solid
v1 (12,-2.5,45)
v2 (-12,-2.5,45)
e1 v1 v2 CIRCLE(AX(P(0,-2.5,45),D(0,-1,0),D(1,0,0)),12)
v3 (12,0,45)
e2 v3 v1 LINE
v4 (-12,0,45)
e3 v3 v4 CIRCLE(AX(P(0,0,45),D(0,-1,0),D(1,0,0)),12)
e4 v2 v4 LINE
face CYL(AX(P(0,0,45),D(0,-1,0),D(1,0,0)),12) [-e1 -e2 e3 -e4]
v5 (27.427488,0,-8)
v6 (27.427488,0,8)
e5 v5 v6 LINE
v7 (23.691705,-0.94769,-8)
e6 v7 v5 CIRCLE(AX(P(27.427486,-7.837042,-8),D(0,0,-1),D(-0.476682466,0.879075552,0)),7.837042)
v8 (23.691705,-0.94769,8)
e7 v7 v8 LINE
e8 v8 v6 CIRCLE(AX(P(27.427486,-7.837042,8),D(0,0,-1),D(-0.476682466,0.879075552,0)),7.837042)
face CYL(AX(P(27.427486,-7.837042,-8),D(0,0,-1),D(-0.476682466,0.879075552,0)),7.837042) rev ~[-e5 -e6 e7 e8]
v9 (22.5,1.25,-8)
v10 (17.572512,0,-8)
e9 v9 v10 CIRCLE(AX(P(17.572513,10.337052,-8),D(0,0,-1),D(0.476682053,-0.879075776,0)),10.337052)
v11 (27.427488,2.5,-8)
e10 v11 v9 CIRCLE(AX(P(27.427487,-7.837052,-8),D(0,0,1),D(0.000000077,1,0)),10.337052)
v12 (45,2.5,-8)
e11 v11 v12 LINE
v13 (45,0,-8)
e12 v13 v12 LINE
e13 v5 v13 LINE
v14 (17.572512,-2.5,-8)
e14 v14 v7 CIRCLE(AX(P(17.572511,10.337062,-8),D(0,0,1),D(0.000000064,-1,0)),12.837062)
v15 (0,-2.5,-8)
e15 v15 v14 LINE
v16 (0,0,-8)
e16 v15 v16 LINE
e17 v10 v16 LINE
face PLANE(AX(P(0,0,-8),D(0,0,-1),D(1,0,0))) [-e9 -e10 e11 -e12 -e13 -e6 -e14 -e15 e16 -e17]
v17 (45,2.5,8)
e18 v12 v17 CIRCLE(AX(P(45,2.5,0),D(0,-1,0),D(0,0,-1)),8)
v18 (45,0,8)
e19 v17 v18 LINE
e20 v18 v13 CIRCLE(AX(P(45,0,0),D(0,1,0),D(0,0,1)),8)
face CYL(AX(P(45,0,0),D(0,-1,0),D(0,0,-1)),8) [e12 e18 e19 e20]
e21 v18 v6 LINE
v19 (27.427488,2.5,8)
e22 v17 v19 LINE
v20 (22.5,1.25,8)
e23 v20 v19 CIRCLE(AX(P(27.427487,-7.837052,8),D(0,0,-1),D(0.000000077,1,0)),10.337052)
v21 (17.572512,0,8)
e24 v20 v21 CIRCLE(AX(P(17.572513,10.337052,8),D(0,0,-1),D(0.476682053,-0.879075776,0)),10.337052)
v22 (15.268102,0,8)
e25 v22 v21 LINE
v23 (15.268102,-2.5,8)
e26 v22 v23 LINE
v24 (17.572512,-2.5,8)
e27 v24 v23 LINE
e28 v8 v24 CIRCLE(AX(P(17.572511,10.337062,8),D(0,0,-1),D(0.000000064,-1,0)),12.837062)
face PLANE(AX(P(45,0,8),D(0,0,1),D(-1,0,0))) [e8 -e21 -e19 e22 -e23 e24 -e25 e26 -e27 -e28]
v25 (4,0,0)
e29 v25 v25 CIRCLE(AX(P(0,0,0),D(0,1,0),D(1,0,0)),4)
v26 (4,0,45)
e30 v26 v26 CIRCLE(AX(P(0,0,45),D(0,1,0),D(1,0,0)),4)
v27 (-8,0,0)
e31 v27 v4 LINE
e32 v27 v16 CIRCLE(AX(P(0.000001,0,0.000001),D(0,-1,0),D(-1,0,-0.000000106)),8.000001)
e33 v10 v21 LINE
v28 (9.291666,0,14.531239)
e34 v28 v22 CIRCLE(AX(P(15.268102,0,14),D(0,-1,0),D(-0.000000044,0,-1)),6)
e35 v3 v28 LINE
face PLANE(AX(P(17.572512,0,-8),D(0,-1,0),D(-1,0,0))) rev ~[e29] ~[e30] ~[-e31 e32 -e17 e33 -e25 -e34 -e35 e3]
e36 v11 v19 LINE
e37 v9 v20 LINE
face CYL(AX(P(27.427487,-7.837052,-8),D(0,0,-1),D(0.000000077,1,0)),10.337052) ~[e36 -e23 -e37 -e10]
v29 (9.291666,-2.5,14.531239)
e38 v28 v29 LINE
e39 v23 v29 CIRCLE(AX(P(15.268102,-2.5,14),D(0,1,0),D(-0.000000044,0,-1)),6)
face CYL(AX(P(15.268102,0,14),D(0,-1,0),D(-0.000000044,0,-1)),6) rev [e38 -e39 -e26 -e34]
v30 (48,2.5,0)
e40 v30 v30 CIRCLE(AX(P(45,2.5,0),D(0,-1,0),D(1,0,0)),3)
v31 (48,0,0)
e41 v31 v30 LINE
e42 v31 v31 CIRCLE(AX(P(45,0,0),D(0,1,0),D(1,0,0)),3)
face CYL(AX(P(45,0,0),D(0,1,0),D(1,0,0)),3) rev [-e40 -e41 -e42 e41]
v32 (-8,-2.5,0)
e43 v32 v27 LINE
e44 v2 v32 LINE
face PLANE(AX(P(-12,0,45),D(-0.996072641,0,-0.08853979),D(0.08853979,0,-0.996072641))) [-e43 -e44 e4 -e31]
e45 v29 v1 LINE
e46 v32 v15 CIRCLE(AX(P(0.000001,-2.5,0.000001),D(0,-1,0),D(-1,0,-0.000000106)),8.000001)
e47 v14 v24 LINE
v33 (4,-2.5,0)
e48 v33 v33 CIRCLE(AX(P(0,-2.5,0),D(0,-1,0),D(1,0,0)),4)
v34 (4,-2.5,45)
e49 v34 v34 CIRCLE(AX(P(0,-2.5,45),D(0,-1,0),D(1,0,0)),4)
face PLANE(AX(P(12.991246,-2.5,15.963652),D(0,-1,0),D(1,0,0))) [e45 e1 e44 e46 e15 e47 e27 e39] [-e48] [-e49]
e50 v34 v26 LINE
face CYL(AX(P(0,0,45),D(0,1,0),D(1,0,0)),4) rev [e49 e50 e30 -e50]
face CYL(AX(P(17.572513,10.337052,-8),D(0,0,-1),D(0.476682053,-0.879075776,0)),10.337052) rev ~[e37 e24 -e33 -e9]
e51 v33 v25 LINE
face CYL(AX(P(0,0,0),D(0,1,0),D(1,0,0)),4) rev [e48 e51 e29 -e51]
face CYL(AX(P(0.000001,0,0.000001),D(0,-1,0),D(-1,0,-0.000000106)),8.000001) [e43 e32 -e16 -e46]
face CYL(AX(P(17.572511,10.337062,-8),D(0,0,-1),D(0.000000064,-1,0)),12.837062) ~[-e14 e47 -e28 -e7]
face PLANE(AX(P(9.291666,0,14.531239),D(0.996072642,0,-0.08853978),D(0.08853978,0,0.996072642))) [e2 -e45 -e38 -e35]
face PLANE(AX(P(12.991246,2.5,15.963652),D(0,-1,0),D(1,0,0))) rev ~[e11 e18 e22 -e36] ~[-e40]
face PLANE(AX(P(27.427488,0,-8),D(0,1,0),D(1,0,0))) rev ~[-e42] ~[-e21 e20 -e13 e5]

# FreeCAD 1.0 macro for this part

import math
import FreeCAD as App
import Part
import Sketcher

V = App.Vector

doc = App.newDocument("Part")
params = doc.addObject("Spreadsheet::Sheet", "Params")
for row, (alias, value) in enumerate([
    ("sketch1_diameter", "8 mm"),
    ("sketch1_diameter2", "6 mm"),
    ("sketch1_radius", "8 mm"),
    ("sketch1_radius2", "6 mm"),
    ("sketch1_radius3", "12 mm"),
    ("pad1_length", "5 mm"),
    ("sketch2_height", "2.5 mm"),
], start=1):
    params.set(f"A{row}", alias)
    params.set(f"B{row}", "=" + value)
    params.setAlias(f"B{row}", alias)

body = doc.addObject("PartDesign::Body", "Body")

# Sketch on XZ plane
sketch1 = doc.addObject("Sketcher::SketchObject", "Sketch")
body.addObject(sketch1)
sketch1.AttachmentSupport = (doc.XZ_Plane, [""])
sketch1.MapMode = "FlatFace"
sketch1.addGeometry(Part.ArcOfCircle(Part.Circle(V(45, 0, 0), V(0, 0, 1), 8), math.radians(-90), math.radians(90)), False)
sketch1.addGeometry(Part.LineSegment(V(45, 8, 0), V(15.268102, 8, 0)), False)
sketch1.addGeometry(Part.ArcOfCircle(Part.Circle(V(15.268102, 14, 0), V(0, 0, 1), 6), math.radians(174.920394), math.radians(269.999997)), False)
sketch1.addGeometry(Part.LineSegment(V(9.291666, 14.531239, 0), V(12, 45, 0)), False)
sketch1.addGeometry(Part.ArcOfCircle(Part.Circle(V(0, 45, 0), V(0, 0, 1), 12), math.radians(0), math.radians(180)), False)
sketch1.addGeometry(Part.LineSegment(V(-12, 45, 0), V(-8, 0, 0)), False)
sketch1.addGeometry(Part.ArcOfCircle(Part.Circle(V(0.000001, 0.000001, 0), V(0, 0, 1), 8.000001), math.radians(-179.999994), math.radians(-90.000006)), False)
sketch1.addGeometry(Part.LineSegment(V(0, -8, 0), V(45, -8, 0)), False)
sketch1.addGeometry(Part.Circle(V(0, 0, 0), V(0, 0, 1), 4), False)
sketch1.addGeometry(Part.Circle(V(45, 0, 0), V(0, 0, 1), 3), False)
sketch1.addGeometry(Part.Circle(V(0, 45, 0), V(0, 0, 1), 4), False)
sketch1.addConstraint(Sketcher.Constraint("Tangent", 0, 2, 1, 1))
sketch1.addConstraint(Sketcher.Constraint("Tangent", 1, 2, 2, 2))
sketch1.addConstraint(Sketcher.Constraint("Tangent", 2, 1, 3, 1))
sketch1.addConstraint(Sketcher.Constraint("Coincident", 3, 2, 4, 1))
sketch1.addConstraint(Sketcher.Constraint("Coincident", 4, 2, 5, 1))
sketch1.addConstraint(Sketcher.Constraint("Coincident", 5, 2, 6, 1))
sketch1.addConstraint(Sketcher.Constraint("Tangent", 6, 2, 7, 1))
sketch1.addConstraint(Sketcher.Constraint("Tangent", 7, 2, 0, 1))
sketch1.addConstraint(Sketcher.Constraint("Horizontal", 1))
sketch1.addConstraint(Sketcher.Constraint("Horizontal", 7))
sketch1.addConstraint(Sketcher.Constraint("Coincident", 6, 3, -1, 1))
sketch1.addConstraint(Sketcher.Constraint("Coincident", 8, 3, -1, 1))
sketch1.addConstraint(Sketcher.Constraint("Coincident", 9, 3, 0, 3))
sketch1.addConstraint(Sketcher.Constraint("Coincident", 10, 3, 4, 3))
sketch1.addConstraint(Sketcher.Constraint("Equal", 0, 6))
sketch1.addConstraint(Sketcher.Constraint("Equal", 8, 10))
sketch1.addConstraint(Sketcher.Constraint("Symmetric", 3, 2, 4, 2, -2))
sketch1.addConstraint(Sketcher.Constraint("PointOnObject", 5, 2, -1))
sketch1.addConstraint(Sketcher.Constraint("Horizontal", 10, 3, 3, 2))
sketch1.addConstraint(Sketcher.Constraint("Diameter", 8, 8.0))
sketch1.addConstraint(Sketcher.Constraint("Diameter", 9, 6.0))
sketch1.addConstraint(Sketcher.Constraint("Radius", 0, 8.0))
sketch1.addConstraint(Sketcher.Constraint("Radius", 2, 6.0))
sketch1.addConstraint(Sketcher.Constraint("Radius", 4, 12.0))
sketch1.addConstraint(Sketcher.Constraint("DistanceX", 7, 1, 7, 2, 45.0))
sketch1.addConstraint(Sketcher.Constraint("DistanceY", -1, 1, 4, 3, 45.0))
sketch1.addConstraint(Sketcher.Constraint("DistanceX", 1, 2, 1, 1, 29.731898))
sketch1.setExpression("Constraints[19]", "Params.sketch1_diameter")
sketch1.setExpression("Constraints[20]", "Params.sketch1_diameter2")
sketch1.setExpression("Constraints[21]", "Params.sketch1_radius")
sketch1.setExpression("Constraints[22]", "Params.sketch1_radius2")
sketch1.setExpression("Constraints[23]", "Params.sketch1_radius3")
pad1 = doc.addObject("PartDesign::Pad", "Pad")
body.addObject(pad1)
pad1.Profile = sketch1
pad1.setExpression("Length", "Params.pad1_length")
pad1.Midplane = True

# Sketch on XY plane
sketch2 = doc.addObject("Sketcher::SketchObject", "Sketch001")
body.addObject(sketch2)
sketch2.AttachmentSupport = (doc.XY_Plane, [""])
sketch2.MapMode = "FlatFace"
sketch2.AttachmentOffset = App.Placement(V(0, 0, -8), App.Rotation())
sketch2.addGeometry(Part.LineSegment(V(-12, 0, 0), V(-12, 2.5, 0)), False)
sketch2.addGeometry(Part.LineSegment(V(-12, 2.5, 0), V(27.427488, 2.5, 0)), False)
sketch2.addGeometry(Part.ArcOfCircle(Part.Circle(V(27.427487, -7.837052, 0), V(0, 0, 1), 10.337052), math.radians(89.999996), math.radians(118.468925)), False)
sketch2.addGeometry(Part.ArcOfCircle(Part.Circle(V(17.572513, 10.337052, 0), V(0, 0, 1), 10.337052), math.radians(-90.000004), math.radians(-61.531075)), False)
sketch2.addGeometry(Part.LineSegment(V(17.572512, 0, 0), V(-12, 0, 0)), False)
sketch2.addGeometry(Part.LineSegment(V(53, 0, 0), V(53, -2.5, 0)), False)
sketch2.addGeometry(Part.LineSegment(V(53, -2.5, 0), V(17.572512, -2.5, 0)), False)
sketch2.addGeometry(Part.ArcOfCircle(Part.Circle(V(17.572511, 10.337062, 0), V(0, 0, 1), 12.837062), math.radians(-89.999996), math.radians(-61.531091)), False)
sketch2.addGeometry(Part.ArcOfCircle(Part.Circle(V(27.427486, -7.837042, 0), V(0, 0, 1), 7.837042), math.radians(89.999982), math.radians(118.468952)), False)
sketch2.addGeometry(Part.LineSegment(V(27.427488, 0, 0), V(53, 0, 0)), False)
sketch2.addConstraint(Sketcher.Constraint("Coincident", 0, 2, 1, 1))
sketch2.addConstraint(Sketcher.Constraint("Tangent", 1, 2, 2, 1))
sketch2.addConstraint(Sketcher.Constraint("Tangent", 2, 2, 3, 2))
sketch2.addConstraint(Sketcher.Constraint("Tangent", 3, 1, 4, 1))
sketch2.addConstraint(Sketcher.Constraint("Coincident", 4, 2, 0, 1))
sketch2.addConstraint(Sketcher.Constraint("Coincident", 5, 2, 6, 1))
sketch2.addConstraint(Sketcher.Constraint("Tangent", 6, 2, 7, 1))
sketch2.addConstraint(Sketcher.Constraint("Tangent", 7, 2, 8, 2))
sketch2.addConstraint(Sketcher.Constraint("Tangent", 8, 1, 9, 1))
sketch2.addConstraint(Sketcher.Constraint("Coincident", 9, 2, 5, 1))
sketch2.addConstraint(Sketcher.Constraint("Vertical", 0))
sketch2.addConstraint(Sketcher.Constraint("Horizontal", 1))
sketch2.addConstraint(Sketcher.Constraint("Horizontal", 4))
sketch2.addConstraint(Sketcher.Constraint("Vertical", 5))
sketch2.addConstraint(Sketcher.Constraint("Horizontal", 6))
sketch2.addConstraint(Sketcher.Constraint("Horizontal", 9))
sketch2.addConstraint(Sketcher.Constraint("Equal", 2, 3))
sketch2.addConstraint(Sketcher.Constraint("PointOnObject", 3, 1, -1))
sketch2.addConstraint(Sketcher.Constraint("PointOnObject", 8, 1, -1))
sketch2.addConstraint(Sketcher.Constraint("Vertical", 3, 3, 7, 3))
sketch2.addConstraint(Sketcher.Constraint("Vertical", 2, 3, 8, 3))
sketch2.addConstraint(Sketcher.Constraint("Equal", 0, 5))
sketch2.addConstraint(Sketcher.Constraint("DistanceY", 0, 1, 0, 2, 2.5))
sketch2.addConstraint(Sketcher.Constraint("DistanceX", 0, 2, -1, 1, 12.0))
sketch2.addConstraint(Sketcher.Constraint("DistanceX", -1, 1, 5, 2, 53.0))
sketch2.addConstraint(Sketcher.Constraint("DistanceX", -1, 1, 2, 2, 22.5))
sketch2.addConstraint(Sketcher.Constraint("Radius", 7, 12.837062))
sketch2.addConstraint(Sketcher.Constraint("Radius", 2, 10.337052))
sketch2.setExpression("Constraints[22]", "Params.sketch2_height")
pocket1 = doc.addObject("PartDesign::Pocket", "Pocket")
body.addObject(pocket1)
pocket1.Profile = sketch2
pocket1.Type = "ThroughAll"
pocket1.Reversed = True

doc.recompute()
